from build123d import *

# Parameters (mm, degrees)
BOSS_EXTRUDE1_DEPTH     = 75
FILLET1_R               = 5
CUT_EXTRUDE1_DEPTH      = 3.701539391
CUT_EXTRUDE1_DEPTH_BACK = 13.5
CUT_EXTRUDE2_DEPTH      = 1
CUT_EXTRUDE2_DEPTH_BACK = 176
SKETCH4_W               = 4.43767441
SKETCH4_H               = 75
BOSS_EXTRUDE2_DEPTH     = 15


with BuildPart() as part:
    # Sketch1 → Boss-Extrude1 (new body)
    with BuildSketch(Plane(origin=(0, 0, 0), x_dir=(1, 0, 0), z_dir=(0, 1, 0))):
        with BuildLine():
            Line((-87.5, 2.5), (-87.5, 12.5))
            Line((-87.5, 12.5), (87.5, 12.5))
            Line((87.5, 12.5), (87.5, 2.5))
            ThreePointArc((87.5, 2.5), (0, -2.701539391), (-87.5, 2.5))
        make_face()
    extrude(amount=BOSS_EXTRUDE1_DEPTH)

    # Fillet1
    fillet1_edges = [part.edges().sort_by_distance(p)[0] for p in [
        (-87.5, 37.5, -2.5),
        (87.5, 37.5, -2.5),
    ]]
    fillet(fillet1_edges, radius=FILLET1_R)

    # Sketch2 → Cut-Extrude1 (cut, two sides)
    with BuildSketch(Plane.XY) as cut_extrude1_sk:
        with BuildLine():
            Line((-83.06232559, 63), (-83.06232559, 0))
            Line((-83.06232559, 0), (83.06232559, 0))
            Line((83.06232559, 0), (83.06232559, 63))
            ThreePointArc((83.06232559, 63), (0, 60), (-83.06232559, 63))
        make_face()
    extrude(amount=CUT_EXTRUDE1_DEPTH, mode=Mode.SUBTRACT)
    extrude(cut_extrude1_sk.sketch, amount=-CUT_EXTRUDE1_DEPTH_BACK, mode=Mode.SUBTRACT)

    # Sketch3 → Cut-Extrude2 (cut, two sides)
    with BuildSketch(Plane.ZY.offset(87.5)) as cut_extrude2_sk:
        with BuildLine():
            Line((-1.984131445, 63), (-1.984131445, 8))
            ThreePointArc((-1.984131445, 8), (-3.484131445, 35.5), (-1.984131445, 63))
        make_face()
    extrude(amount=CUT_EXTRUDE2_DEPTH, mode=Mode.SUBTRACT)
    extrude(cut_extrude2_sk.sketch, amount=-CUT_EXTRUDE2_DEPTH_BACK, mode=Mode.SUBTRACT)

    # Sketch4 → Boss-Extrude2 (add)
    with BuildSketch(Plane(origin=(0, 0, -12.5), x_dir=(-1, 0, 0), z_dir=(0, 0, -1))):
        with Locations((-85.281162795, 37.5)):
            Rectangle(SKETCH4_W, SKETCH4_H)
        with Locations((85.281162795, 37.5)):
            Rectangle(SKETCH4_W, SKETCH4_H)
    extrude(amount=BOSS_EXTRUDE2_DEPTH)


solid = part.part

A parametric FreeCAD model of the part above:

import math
import FreeCAD as App
import Part
import Sketcher
from FreeCAD import Vector
Q = App.Units.Quantity


def edges_at(feature, points):
    """Names of the edges that pass closest to the given points."""
    edges = feature.Shape.Edges
    near = lambda p: min(range(len(edges)), key=lambda i: edges[i].distToShape(Part.Vertex(*p))[0])
    return sorted({f"Edge{near(p) + 1}" for p in points})

doc = App.newDocument("Part")
body = doc.addObject("PartDesign::Body", "Body")

# Sketch on XZ plane
sketch1 = body.newObject("Sketcher::SketchObject", "Sketch")
sketch1.AttachmentSupport = (doc.getObject("XZ_Plane"), [""])
sketch1.MapMode = "FlatFace"
sketch1.addGeometry([
    Part.LineSegment(Vector(-88, -12, 0), Vector(-88, -2, 0)),
    Part.ArcOfCircle(Part.Circle(Vector(0, -736, 0), Vector(0, 0, 1), 739), math.radians(83.2), math.radians(96.8)),
    Part.LineSegment(Vector(88, -2, 0), Vector(88, -12, 0)),
    Part.LineSegment(Vector(88, -12, 0), Vector(-88, -12, 0)),
], False)
sketch1.addConstraint([
    Sketcher.Constraint("Coincident", 0, 2, 1, 2),
    Sketcher.Constraint("Coincident", 1, 1, 2, 1),
    Sketcher.Constraint("Coincident", 2, 2, 3, 1),
    Sketcher.Constraint("Coincident", 3, 2, 0, 1),
    Sketcher.Constraint("Vertical", 0),
    Sketcher.Constraint("Vertical", 2),
    Sketcher.Constraint("Horizontal", 3),
    Sketcher.Constraint("PointOnObject", 1, 3, -2),
    Sketcher.Constraint("Equal", 0, 2),
    Sketcher.Constraint("DistanceX", 3, 2, 3, 1, Q("175 mm")),
    Sketcher.Constraint("DistanceY", 0, 1, 0, 2, Q("10 mm")),
    Sketcher.Constraint("DistanceY", 0, 2, -1, 1, Q("2.5 mm")),
    Sketcher.Constraint("Radius", 1, Q("738.560783 mm")),
])
pad1 = body.newObject("PartDesign::Pad", "Pad")
pad1.Profile = sketch1
pad1.Length = 75
pad1.Reversed = True
doc.recompute()

fillet = body.newObject("PartDesign::Fillet", "Fillet")
fillet.Base = (pad1, edges_at(pad1, [(-87.5, 37.5, -2.5), (87.5, 37.5, -2.5)]))
fillet.Radius = 5

# Sketch on XY plane
sketch2 = body.newObject("Sketcher::SketchObject", "Sketch001")
sketch2.AttachmentSupport = (doc.getObject("XY_Plane"), [""])
sketch2.MapMode = "FlatFace"
sketch2.addGeometry([
    Part.LineSegment(Vector(-83, 63, 0), Vector(-83, 0, 0)),
    Part.LineSegment(Vector(-83, 0, 0), Vector(83, 0, 0)),
    Part.LineSegment(Vector(83, 0, 0), Vector(83, 63, 0)),
    Part.ArcOfCircle(Part.Circle(Vector(0, 1211, 0), Vector(0, 0, 1), 1151), math.radians(-94.14), math.radians(-85.86)),
], False)
sketch2.addConstraint([
    Sketcher.Constraint("Coincident", 0, 2, 1, 1),
    Sketcher.Constraint("Coincident", 1, 2, 2, 1),
    Sketcher.Constraint("Coincident", 2, 2, 3, 2),
    Sketcher.Constraint("Coincident", 3, 1, 0, 1),
    Sketcher.Constraint("Vertical", 0),
    Sketcher.Constraint("Horizontal", 1),
    Sketcher.Constraint("Vertical", 2),
    Sketcher.Constraint("Symmetric", 0, 2, 1, 2, -1, 1),
    Sketcher.Constraint("PointOnObject", 3, 3, -2),
    Sketcher.Constraint("DistanceY", 0, 2, 0, 1, Q("63 mm")),
    Sketcher.Constraint("Radius", 3, Q("1151.391655 mm")),
    Sketcher.Constraint("DistanceX", 1, 1, 1, 2, Q("166.124651 mm")),
])
pocket1 = body.newObject("PartDesign::Pocket", "Pocket")
pocket1.Profile = sketch2
pocket1.Type = "ThroughAll"
pocket1.Midplane = True

# Sketch on YZ plane
sketch3 = body.newObject("Sketcher::SketchObject", "Sketch002")
sketch3.AttachmentSupport = (doc.getObject("YZ_Plane"), [""])
sketch3.MapMode = "FlatFace"
sketch3.AttachmentOffset = App.Placement(Vector(0, 0, -87.5), App.Rotation())
sketch3.addGeometry([
    Part.LineSegment(Vector(8, -2, 0), Vector(63, -2, 0)),
    Part.ArcOfCircle(Part.Circle(Vector(36, 249, 0), Vector(0, 0, 1), 253), math.radians(-96.24), math.radians(-83.76)),
], False)
sketch3.addConstraint([
    Sketcher.Constraint("Coincident", 0, 1, 1, 1),
    Sketcher.Constraint("Coincident", 1, 2, 0, 2),
    Sketcher.Constraint("Horizontal", 0),
    Sketcher.Constraint("DistanceX", 0, 1, 0, 2, Q("55 mm")),
    Sketcher.Constraint("DistanceX", -1, 1, 0, 1, Q("8 mm")),
    Sketcher.Constraint("Radius", 1, Q("252.833333 mm")),
    Sketcher.Constraint("DistanceY", -1, 1, 1, 3, Q("249.349202 mm")),
])
pocket2 = body.newObject("PartDesign::Pocket", "Pocket001")
pocket2.Profile = sketch3
pocket2.Type = "ThroughAll"
pocket2.Midplane = True

# Sketch on XY plane
sketch4 = body.newObject("Sketcher::SketchObject", "Sketch003")
sketch4.AttachmentSupport = (doc.getObject("XY_Plane"), [""])
sketch4.MapMode = "FlatFace"
sketch4.AttachmentOffset = App.Placement(Vector(0, 0, -12.5), App.Rotation())
sketch4.addGeometry([
    Part.LineSegment(Vector(87.5, 75, 0), Vector(87.5, 0, 0)),  # 0
    Part.LineSegment(Vector(87.5, 0, 0), Vector(83.1, 0, 0)),  # 1
    Part.LineSegment(Vector(83.1, 0, 0), Vector(83.1, 75, 0)),  # 2
    Part.LineSegment(Vector(83.1, 75, 0), Vector(87.5, 75, 0)),  # 3
    Part.LineSegment(Vector(-83.1, 75, 0), Vector(-83.1, 0, 0)),  # 4
    Part.LineSegment(Vector(-83.1, 0, 0), Vector(-87.5, 0, 0)),  # 5
    Part.LineSegment(Vector(-87.5, 0, 0), Vector(-87.5, 75, 0)),  # 6
    Part.LineSegment(Vector(-87.5, 75, 0), Vector(-83.1, 75, 0)),  # 7
], False)
sketch4.addConstraint([
    Sketcher.Constraint("Coincident", 0, 2, 1, 1),
    Sketcher.Constraint("Coincident", 1, 2, 2, 1),
    Sketcher.Constraint("Coincident", 2, 2, 3, 1),
    Sketcher.Constraint("Coincident", 3, 2, 0, 1),
    Sketcher.Constraint("Coincident", 4, 2, 5, 1),
    Sketcher.Constraint("Coincident", 5, 2, 6, 1),
    Sketcher.Constraint("Coincident", 6, 2, 7, 1),
    Sketcher.Constraint("Coincident", 7, 2, 4, 1),
    Sketcher.Constraint("Vertical", 0),
    Sketcher.Constraint("Horizontal", 1),
    Sketcher.Constraint("Vertical", 2),
    Sketcher.Constraint("Horizontal", 3),
    Sketcher.Constraint("Vertical", 4),
    Sketcher.Constraint("Horizontal", 5),
    Sketcher.Constraint("Vertical", 6),
    Sketcher.Constraint("Horizontal", 7),
    Sketcher.Constraint("Symmetric", 1, 2, 4, 2, -1, 1),
    Sketcher.Constraint("Symmetric", 0, 2, 5, 2, -2),
    Sketcher.Constraint("Horizontal", 3, 2, 6, 2),
    Sketcher.Constraint("DistanceY", 0, 2, 0, 1, Q("75 mm")),
    Sketcher.Constraint("DistanceX", 5, 2, 0, 2, Q("175 mm")),
    Sketcher.Constraint("DistanceX", 1, 2, 1, 1, Q("4.437674 mm")),
])
pad2 = body.newObject("PartDesign::Pad", "Pad001")
pad2.Profile = sketch4
pad2.Length = 15
pad2.Reversed = True

doc.recompute()
